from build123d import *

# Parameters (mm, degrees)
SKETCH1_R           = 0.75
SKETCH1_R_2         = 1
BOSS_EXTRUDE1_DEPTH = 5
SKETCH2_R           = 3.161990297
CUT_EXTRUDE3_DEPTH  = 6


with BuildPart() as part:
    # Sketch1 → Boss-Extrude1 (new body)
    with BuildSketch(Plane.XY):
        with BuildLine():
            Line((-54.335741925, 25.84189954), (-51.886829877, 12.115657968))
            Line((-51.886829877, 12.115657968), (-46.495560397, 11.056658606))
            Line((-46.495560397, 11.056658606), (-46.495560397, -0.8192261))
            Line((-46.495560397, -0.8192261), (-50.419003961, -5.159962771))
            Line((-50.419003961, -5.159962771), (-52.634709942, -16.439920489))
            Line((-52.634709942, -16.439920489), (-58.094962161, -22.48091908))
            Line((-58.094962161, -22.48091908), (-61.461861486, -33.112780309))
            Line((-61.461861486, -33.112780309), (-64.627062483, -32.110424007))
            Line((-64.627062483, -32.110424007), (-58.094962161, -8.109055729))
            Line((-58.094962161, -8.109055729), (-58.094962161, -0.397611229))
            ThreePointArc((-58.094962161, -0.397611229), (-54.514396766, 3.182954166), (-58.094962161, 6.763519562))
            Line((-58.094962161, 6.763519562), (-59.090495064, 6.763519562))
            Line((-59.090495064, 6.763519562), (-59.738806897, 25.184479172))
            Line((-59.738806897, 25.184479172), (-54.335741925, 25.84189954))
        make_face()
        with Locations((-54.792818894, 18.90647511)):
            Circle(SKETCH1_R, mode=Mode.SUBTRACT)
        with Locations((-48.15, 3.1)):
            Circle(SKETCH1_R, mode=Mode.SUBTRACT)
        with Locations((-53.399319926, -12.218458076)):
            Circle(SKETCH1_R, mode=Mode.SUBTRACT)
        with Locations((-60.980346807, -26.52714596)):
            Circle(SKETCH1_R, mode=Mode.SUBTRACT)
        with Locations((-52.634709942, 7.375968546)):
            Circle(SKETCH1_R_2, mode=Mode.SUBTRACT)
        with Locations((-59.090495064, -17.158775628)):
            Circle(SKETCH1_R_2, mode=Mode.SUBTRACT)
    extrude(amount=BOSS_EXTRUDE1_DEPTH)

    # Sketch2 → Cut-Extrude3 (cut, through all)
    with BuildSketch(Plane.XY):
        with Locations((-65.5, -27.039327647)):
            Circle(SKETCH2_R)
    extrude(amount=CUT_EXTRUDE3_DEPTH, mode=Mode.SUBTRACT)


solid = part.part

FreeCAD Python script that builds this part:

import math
import FreeCAD as App
import Part
import Sketcher
from FreeCAD import Vector
Q = App.Units.Quantity

doc = App.newDocument("Part")
body = doc.addObject("PartDesign::Body", "Body")

# Sketch on XY plane
sketch1 = doc.addObject("Sketcher::SketchObject", "Sketch")
body.addObject(sketch1)
sketch1.AttachmentSupport = (doc.XY_Plane, [""])
sketch1.MapMode = "FlatFace"
sketch1.addGeometry([
    Part.LineSegment(Vector(-51.88683, 12.115658, 0), Vector(-54.335742, 25.8419, 0)),  # 0
    Part.LineSegment(Vector(-54.335742, 25.8419, 0), Vector(-59.738807, 25.184479, 0)),  # 1
    Part.LineSegment(Vector(-59.738807, 25.184479, 0), Vector(-59.090495, 6.76352, 0)),  # 2
    Part.LineSegment(Vector(-59.090495, 6.76352, 0), Vector(-58.094962, 6.76352, 0)),  # 3
    Part.ArcOfCircle(Part.Circle(Vector(-58.094962, 3.182954, 0), Vector(0, 0, 1), 3.580565), math.radians(-90), math.radians(90)),  # 4
    Part.LineSegment(Vector(-58.094962, -0.397611, 0), Vector(-58.094962, -8.109056, 0)),  # 5
    Part.LineSegment(Vector(-58.094962, -8.109056, 0), Vector(-64.627062, -32.110424, 0)),  # 6
    Part.LineSegment(Vector(-64.627062, -32.110424, 0), Vector(-61.461861, -33.11278, 0)),  # 7
    Part.LineSegment(Vector(-61.461861, -33.11278, 0), Vector(-58.094962, -22.480919, 0)),  # 8
    Part.LineSegment(Vector(-58.094962, -22.480919, 0), Vector(-52.63471, -16.43992, 0)),  # 9
    Part.LineSegment(Vector(-52.63471, -16.43992, 0), Vector(-50.419004, -5.159963, 0)),  # 10
    Part.LineSegment(Vector(-50.419004, -5.159963, 0), Vector(-46.49556, -0.819226, 0)),  # 11
    Part.LineSegment(Vector(-46.49556, -0.819226, 0), Vector(-46.49556, 11.056659, 0)),  # 12
    Part.LineSegment(Vector(-46.49556, 11.056659, 0), Vector(-51.88683, 12.115658, 0)),  # 13
    Part.Circle(Vector(-53.39932, -12.218458, 0), Vector(0, 0, 1), 0.75),  # 14
    Part.Circle(Vector(-60.980347, -26.527146, 0), Vector(0, 0, 1), 0.75),  # 15
    Part.Circle(Vector(-59.090495, -17.158776, 0), Vector(0, 0, 1), 1),  # 16
    Part.Circle(Vector(-48.15, 3.1, 0), Vector(0, 0, 1), 0.75),  # 17
    Part.Circle(Vector(-52.63471, 7.375969, 0), Vector(0, 0, 1), 1),  # 18
    Part.Circle(Vector(-54.792819, 18.906475, 0), Vector(0, 0, 1), 0.75),  # 19
], False)
sketch1.addConstraint([
    Sketcher.Constraint("Coincident", 0, 2, 1, 1),
    Sketcher.Constraint("Coincident", 1, 2, 2, 1),
    Sketcher.Constraint("Coincident", 2, 2, 3, 1),
    Sketcher.Constraint("Tangent", 3, 2, 4, 2),
    Sketcher.Constraint("Coincident", 4, 1, 5, 1),
    Sketcher.Constraint("Coincident", 5, 2, 6, 1),
    Sketcher.Constraint("Coincident", 6, 2, 7, 1),
    Sketcher.Constraint("Coincident", 7, 2, 8, 1),
    Sketcher.Constraint("Coincident", 8, 2, 9, 1),
    Sketcher.Constraint("Coincident", 9, 2, 10, 1),
    Sketcher.Constraint("Coincident", 10, 2, 11, 1),
    Sketcher.Constraint("Coincident", 11, 2, 12, 1),
    Sketcher.Constraint("Coincident", 12, 2, 13, 1),
    Sketcher.Constraint("Coincident", 13, 2, 0, 1),
    Sketcher.Constraint("Horizontal", 3),
    Sketcher.Constraint("Vertical", 5),
    Sketcher.Constraint("Vertical", 12),
    Sketcher.Constraint("Equal", 14, 15),
    Sketcher.Constraint("Equal", 15, 17),
    Sketcher.Constraint("Equal", 16, 18),
    Sketcher.Constraint("Equal", 17, 19),
    Sketcher.Constraint("Perpendicular", 7, 8),
    Sketcher.Constraint("Parallel", 9, 11),
    Sketcher.Constraint("Perpendicular", 10, 13),
    Sketcher.Constraint("Vertical", 16, 3, 2, 2),
    Sketcher.Constraint("Vertical", 3, 2, 4, 1),
    Sketcher.Constraint("Vertical", 5, 2, 8, 2),
    Sketcher.Constraint("Vertical", 18, 3, 9, 2),
    Sketcher.Constraint("Diameter", 16, Q("2 mm")),
    Sketcher.Constraint("Diameter", 14, Q("1.5 mm")),
    Sketcher.Constraint("DistanceY", -1, 1, 17, 3, Q("3.1 mm")),
    Sketcher.Constraint("DistanceX", 17, 3, -1, 1, Q("48.15 mm")),
    Sketcher.Constraint("Radius", 4, Q("3.580565 mm")),
    Sketcher.Constraint("DistanceY", 8, 2, 9, 2, Q("6.040999 mm")),
    Sketcher.Constraint("DistanceY", 12, 2, 13, 2, Q("1.058999 mm")),
    Sketcher.Constraint("DistanceY", -1, 1, 0, 2, Q("25.8419 mm")),
    Sketcher.Constraint("DistanceY", 15, 3, 4, 3, Q("29.7101 mm")),
    Sketcher.Constraint("DistanceX", 19, 3, 14, 3, Q("1.393499 mm")),
    Sketcher.Constraint("DistanceX", 6, 2, 5, 2, Q("6.5321 mm")),
    Sketcher.Constraint("DistanceX", 6, 2, 7, 2, Q("3.165201 mm")),
    Sketcher.Constraint("DistanceX", 4, 1, 11, 2, Q("11.599402 mm")),
    Sketcher.Constraint("Distance", 8, Q("11.152241 mm")),
    Sketcher.Constraint("DistanceX", 3, 1, 3, 2, Q("0.995533 mm")),
    Sketcher.Constraint("DistanceY", 5, 2, 5, 1, Q("7.711444 mm")),
    Sketcher.Constraint("DistanceY", 12, 1, 12, 2, Q("11.875885 mm")),
    Sketcher.Constraint("DistanceX", 14, 3, -1, 1, Q("53.39932 mm")),
    Sketcher.Constraint("DistanceY", 14, 3, -1, 1, Q("12.218458 mm")),
    Sketcher.Constraint("DistanceX", 18, 3, -1, 1, Q("52.63471 mm")),
    Sketcher.Constraint("DistanceY", -1, 1, 18, 3, Q("7.375969 mm")),
    Sketcher.Constraint("DistanceX", 0, 2, -1, 1, Q("54.335742 mm")),
    Sketcher.Constraint("DistanceY", -1, 1, 1, 2, Q("25.184479 mm")),
    Sketcher.Constraint("DistanceY", -1, 1, 2, 2, Q("6.76352 mm")),
    Sketcher.Constraint("DistanceX", 7, 2, -1, 1, Q("61.461861 mm")),
    Sketcher.Constraint("DistanceY", 7, 2, -1, 1, Q("33.11278 mm")),
    Sketcher.Constraint("DistanceY", -1, 1, 12, 2, Q("11.056659 mm")),
    Sketcher.Constraint("DistanceX", 13, 2, -1, 1, Q("51.88683 mm")),
    Sketcher.Constraint("DistanceX", 15, 3, 16, 3, Q("1.889852 mm")),
    Sketcher.Constraint("DistanceY", 15, 3, 16, 3, Q("9.36837 mm")),
    Sketcher.Constraint("DistanceY", 4, 3, 19, 3, Q("15.723521 mm")),
    Sketcher.Constraint("DistanceX", 1, 2, 19, 3, Q("4.945988 mm")),
])
pad1 = doc.addObject("PartDesign::Pad", "Pad")
body.addObject(pad1)
pad1.Profile = sketch1
pad1.Length = 5

# Sketch on XY plane
sketch2 = doc.addObject("Sketcher::SketchObject", "Sketch001")
body.addObject(sketch2)
sketch2.AttachmentSupport = (doc.XY_Plane, [""])
sketch2.MapMode = "FlatFace"
sketch2.addGeometry(Part.Circle(Vector(-65.5, -27.039328, 0), Vector(0, 0, 1), 3.16199), False)
sketch2.addConstraint([
    Sketcher.Constraint("DistanceX", 0, 3, -1, 1, Q("65.5 mm")),
    Sketcher.Constraint("Diameter", 0, Q("6.323981 mm")),
    Sketcher.Constraint("DistanceY", 0, 3, -1, 1, Q("27.039328 mm")),
])
pocket1 = doc.addObject("PartDesign::Pocket", "Pocket")
body.addObject(pocket1)
pocket1.Profile = sketch2
pocket1.Type = "ThroughAll"
pocket1.Reversed = True

doc.recompute()
